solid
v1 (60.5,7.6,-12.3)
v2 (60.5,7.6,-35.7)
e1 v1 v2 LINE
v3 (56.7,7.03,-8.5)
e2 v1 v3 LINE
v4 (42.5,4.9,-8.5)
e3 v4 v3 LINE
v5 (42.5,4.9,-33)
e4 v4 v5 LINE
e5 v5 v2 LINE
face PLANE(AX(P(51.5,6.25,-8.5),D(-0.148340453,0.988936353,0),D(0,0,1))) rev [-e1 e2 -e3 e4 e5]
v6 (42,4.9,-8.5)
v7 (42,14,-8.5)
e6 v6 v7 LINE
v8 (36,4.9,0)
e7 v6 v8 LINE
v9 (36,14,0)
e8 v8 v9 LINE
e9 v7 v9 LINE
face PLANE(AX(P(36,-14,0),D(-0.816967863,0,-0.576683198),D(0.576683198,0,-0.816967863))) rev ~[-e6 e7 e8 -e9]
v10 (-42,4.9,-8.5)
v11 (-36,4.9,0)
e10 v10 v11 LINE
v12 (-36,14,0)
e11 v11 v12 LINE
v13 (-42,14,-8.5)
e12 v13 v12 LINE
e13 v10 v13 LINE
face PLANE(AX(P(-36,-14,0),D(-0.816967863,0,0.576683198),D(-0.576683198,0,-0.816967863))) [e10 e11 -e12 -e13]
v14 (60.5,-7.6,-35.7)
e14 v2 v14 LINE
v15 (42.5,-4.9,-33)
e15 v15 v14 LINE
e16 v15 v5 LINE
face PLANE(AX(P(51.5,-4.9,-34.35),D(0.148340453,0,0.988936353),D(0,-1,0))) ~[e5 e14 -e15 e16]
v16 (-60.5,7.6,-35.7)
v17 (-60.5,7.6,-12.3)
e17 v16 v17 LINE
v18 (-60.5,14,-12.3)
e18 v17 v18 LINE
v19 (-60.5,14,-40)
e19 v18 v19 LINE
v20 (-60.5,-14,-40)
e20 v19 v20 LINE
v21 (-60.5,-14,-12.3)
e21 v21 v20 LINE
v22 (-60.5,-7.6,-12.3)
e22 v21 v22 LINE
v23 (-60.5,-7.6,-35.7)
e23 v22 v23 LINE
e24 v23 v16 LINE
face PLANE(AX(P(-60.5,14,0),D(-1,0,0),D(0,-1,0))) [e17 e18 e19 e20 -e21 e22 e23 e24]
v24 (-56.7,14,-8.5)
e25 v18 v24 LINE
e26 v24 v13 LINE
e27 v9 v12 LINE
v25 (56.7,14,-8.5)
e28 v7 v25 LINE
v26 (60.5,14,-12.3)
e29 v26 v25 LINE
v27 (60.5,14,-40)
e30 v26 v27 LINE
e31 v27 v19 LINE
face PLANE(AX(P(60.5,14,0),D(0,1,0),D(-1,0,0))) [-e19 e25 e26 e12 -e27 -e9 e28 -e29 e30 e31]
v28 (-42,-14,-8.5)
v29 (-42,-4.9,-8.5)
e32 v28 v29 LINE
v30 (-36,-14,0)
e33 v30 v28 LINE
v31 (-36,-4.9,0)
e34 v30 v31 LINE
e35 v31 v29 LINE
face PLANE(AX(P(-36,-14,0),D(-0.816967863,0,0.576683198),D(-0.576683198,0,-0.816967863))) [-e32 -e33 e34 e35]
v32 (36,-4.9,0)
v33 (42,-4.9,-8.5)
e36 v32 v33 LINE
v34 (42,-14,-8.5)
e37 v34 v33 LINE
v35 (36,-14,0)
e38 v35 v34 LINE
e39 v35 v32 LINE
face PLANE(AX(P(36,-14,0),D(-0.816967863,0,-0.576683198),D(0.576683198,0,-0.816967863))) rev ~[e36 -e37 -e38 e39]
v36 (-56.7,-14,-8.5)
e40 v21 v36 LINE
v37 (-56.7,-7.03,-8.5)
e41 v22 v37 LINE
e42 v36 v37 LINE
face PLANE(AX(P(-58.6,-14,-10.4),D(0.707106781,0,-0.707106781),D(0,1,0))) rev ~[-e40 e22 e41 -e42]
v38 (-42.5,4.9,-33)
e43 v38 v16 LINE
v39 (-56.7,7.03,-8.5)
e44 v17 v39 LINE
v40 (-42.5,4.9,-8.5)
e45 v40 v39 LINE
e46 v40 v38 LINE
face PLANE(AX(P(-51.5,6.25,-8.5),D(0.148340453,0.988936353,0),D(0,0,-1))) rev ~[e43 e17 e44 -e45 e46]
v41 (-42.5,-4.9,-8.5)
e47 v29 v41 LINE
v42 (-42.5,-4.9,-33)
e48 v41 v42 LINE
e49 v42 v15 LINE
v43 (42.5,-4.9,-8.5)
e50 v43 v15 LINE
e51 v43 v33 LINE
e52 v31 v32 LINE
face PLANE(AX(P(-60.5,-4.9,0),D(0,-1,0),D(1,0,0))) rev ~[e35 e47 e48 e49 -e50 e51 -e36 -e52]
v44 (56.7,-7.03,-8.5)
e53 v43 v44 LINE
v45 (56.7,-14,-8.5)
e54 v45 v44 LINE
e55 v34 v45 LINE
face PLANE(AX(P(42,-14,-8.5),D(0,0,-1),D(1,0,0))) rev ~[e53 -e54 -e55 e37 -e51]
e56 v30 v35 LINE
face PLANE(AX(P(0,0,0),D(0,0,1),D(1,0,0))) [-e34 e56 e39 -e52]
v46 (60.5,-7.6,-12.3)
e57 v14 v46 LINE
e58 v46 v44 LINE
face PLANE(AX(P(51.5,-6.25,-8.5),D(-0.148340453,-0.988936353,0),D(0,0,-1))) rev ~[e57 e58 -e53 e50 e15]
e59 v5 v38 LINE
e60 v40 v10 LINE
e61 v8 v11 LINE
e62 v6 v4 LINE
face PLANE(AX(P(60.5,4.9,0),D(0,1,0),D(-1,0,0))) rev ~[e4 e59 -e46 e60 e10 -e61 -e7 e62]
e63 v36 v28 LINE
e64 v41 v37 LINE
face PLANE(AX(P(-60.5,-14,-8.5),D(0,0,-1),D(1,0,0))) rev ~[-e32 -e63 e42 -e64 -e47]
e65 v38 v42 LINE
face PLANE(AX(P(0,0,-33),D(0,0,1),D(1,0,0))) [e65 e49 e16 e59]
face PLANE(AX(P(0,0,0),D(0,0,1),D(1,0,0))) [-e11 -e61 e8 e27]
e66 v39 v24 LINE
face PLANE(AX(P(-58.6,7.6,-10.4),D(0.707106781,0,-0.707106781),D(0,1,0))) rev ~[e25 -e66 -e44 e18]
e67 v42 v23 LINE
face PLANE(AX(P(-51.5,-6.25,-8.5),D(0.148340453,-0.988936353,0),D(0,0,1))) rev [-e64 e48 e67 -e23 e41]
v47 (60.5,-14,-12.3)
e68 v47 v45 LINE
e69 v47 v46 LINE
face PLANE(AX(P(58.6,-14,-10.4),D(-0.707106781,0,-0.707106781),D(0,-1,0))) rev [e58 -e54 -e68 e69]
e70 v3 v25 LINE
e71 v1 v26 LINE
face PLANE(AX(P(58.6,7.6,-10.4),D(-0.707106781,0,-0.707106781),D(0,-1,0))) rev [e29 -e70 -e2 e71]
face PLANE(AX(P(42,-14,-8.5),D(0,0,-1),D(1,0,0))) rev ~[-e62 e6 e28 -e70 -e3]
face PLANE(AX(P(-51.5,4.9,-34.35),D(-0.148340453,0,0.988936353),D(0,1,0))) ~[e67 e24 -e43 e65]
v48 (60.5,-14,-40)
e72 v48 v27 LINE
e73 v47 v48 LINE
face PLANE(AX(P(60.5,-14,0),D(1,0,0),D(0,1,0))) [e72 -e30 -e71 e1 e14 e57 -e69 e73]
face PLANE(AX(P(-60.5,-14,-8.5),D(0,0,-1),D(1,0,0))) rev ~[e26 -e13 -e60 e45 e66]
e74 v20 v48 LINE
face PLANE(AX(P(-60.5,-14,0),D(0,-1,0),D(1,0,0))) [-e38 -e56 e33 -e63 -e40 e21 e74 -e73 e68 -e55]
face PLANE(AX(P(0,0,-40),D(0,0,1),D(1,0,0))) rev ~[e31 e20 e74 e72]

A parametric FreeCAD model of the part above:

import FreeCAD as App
import Part
import Sketcher
from FreeCAD import Vector
Q = App.Units.Quantity


def edges_at(feature, points):
    """Names of the edges that pass closest to the given points."""
    edges = feature.Shape.Edges
    near = lambda p: min(range(len(edges)), key=lambda i: edges[i].distToShape(Part.Vertex(*p))[0])
    return sorted({f"Edge{near(p) + 1}" for p in points})

doc = App.newDocument("Part")
body = doc.addObject("PartDesign::Body", "Body")

sketch1 = body.newObject("Sketcher::SketchObject", "Sketch")
sketch1.AttachmentSupport = (doc.getObject("XY_Plane"), [""])
sketch1.MapMode = "FlatFace"
sketch1.addGeometry(Part.LineSegment(Vector(-60.5, 14, 0), Vector(-60.5, -14, 0)), False)
sketch1.addGeometry(Part.LineSegment(Vector(-60.5, -14, 0), Vector(60.5, -14, 0)), False)
sketch1.addGeometry(Part.LineSegment(Vector(60.5, -14, 0), Vector(60.5, 14, 0)), False)
sketch1.addGeometry(Part.LineSegment(Vector(60.5, 14, 0), Vector(-60.5, 14, 0)), False)
sketch1.addConstraint(Sketcher.Constraint("Coincident", 0, 2, 1, 1))
sketch1.addConstraint(Sketcher.Constraint("Coincident", 1, 2, 2, 1))
sketch1.addConstraint(Sketcher.Constraint("Coincident", 2, 2, 3, 1))
sketch1.addConstraint(Sketcher.Constraint("Coincident", 3, 2, 0, 1))
sketch1.addConstraint(Sketcher.Constraint("Vertical", 0))
sketch1.addConstraint(Sketcher.Constraint("Horizontal", 1))
sketch1.addConstraint(Sketcher.Constraint("Vertical", 2))
sketch1.addConstraint(Sketcher.Constraint("Horizontal", 3))
sketch1.addConstraint(Sketcher.Constraint("Symmetric", 0, 2, 2, 2, -1, 1))
sketch1.addConstraint(Sketcher.Constraint("DistanceX", 1, 1, 1, 2, Q("121 mm")))
sketch1.addConstraint(Sketcher.Constraint("DistanceY", 0, 2, 0, 1, Q("28 mm")))
pad1 = body.newObject("PartDesign::Pad", "Pad")
pad1.Profile = sketch1
pad1.Length = 40
pad1.Reversed = True

sketch2 = body.newObject("Sketcher::SketchObject", "Sketch001")
sketch2.AttachmentSupport = (doc.getObject("XZ_Plane"), [""])
sketch2.MapMode = "FlatFace"
sketch2.AttachmentOffset = App.Placement(Vector(0, 0, 14), App.Rotation())
sketch2.addGeometry(Part.LineSegment(Vector(60.5, -8.5, 0), Vector(60.5, 0, 0)), False)
sketch2.addGeometry(Part.LineSegment(Vector(60.5, 0, 0), Vector(42, 0, 0)), False)
sketch2.addGeometry(Part.LineSegment(Vector(42, 0, 0), Vector(42, -8.5, 0)), False)
sketch2.addGeometry(Part.LineSegment(Vector(42, -8.5, 0), Vector(60.5, -8.5, 0)), False)
sketch2.addConstraint(Sketcher.Constraint("Coincident", 0, 2, 1, 1))
sketch2.addConstraint(Sketcher.Constraint("Coincident", 1, 2, 2, 1))
sketch2.addConstraint(Sketcher.Constraint("Coincident", 2, 2, 3, 1))
sketch2.addConstraint(Sketcher.Constraint("Coincident", 3, 2, 0, 1))
sketch2.addConstraint(Sketcher.Constraint("Vertical", 0))
sketch2.addConstraint(Sketcher.Constraint("Horizontal", 1))
sketch2.addConstraint(Sketcher.Constraint("Vertical", 2))
sketch2.addConstraint(Sketcher.Constraint("Horizontal", 3))
sketch2.addConstraint(Sketcher.Constraint("PointOnObject", 0, 2, -1))
sketch2.addConstraint(Sketcher.Constraint("DistanceX", 1, 2, 1, 1, Q("18.5 mm")))
sketch2.addConstraint(Sketcher.Constraint("DistanceY", 0, 1, 0, 2, Q("8.5 mm")))
sketch2.addConstraint(Sketcher.Constraint("DistanceX", -1, 1, 1, 2, Q("42 mm")))
pocket1 = body.newObject("PartDesign::Pocket", "Pocket")
pocket1.Profile = sketch2
pocket1.Length = 28

sketch3 = body.newObject("Sketcher::SketchObject", "Sketch002")
sketch3.AttachmentSupport = (doc.getObject("XZ_Plane"), [""])
sketch3.MapMode = "FlatFace"
sketch3.AttachmentOffset = App.Placement(Vector(0, 0, 14), App.Rotation())
sketch3.addGeometry(Part.LineSegment(Vector(-60.5, 0, 0), Vector(-60.5, -8.5, 0)), False)
sketch3.addGeometry(Part.LineSegment(Vector(-60.5, -8.5, 0), Vector(-42, -8.5, 0)), False)
sketch3.addGeometry(Part.LineSegment(Vector(-42, -8.5, 0), Vector(-42, 0, 0)), False)
sketch3.addGeometry(Part.LineSegment(Vector(-42, 0, 0), Vector(-60.5, 0, 0)), False)
sketch3.addConstraint(Sketcher.Constraint("Coincident", 0, 2, 1, 1))
sketch3.addConstraint(Sketcher.Constraint("Coincident", 1, 2, 2, 1))
sketch3.addConstraint(Sketcher.Constraint("Coincident", 2, 2, 3, 1))
sketch3.addConstraint(Sketcher.Constraint("Coincident", 3, 2, 0, 1))
sketch3.addConstraint(Sketcher.Constraint("Vertical", 0))
sketch3.addConstraint(Sketcher.Constraint("Horizontal", 1))
sketch3.addConstraint(Sketcher.Constraint("Vertical", 2))
sketch3.addConstraint(Sketcher.Constraint("Horizontal", 3))
sketch3.addConstraint(Sketcher.Constraint("PointOnObject", 2, 2, -1))
sketch3.addConstraint(Sketcher.Constraint("DistanceX", 1, 1, 1, 2, Q("18.5 mm")))
sketch3.addConstraint(Sketcher.Constraint("DistanceY", 0, 2, 0, 1, Q("8.5 mm")))
sketch3.addConstraint(Sketcher.Constraint("DistanceX", 1, 2, -1, 1, Q("42 mm")))
pocket2 = body.newObject("PartDesign::Pocket", "Pocket001")
pocket2.Profile = sketch3
pocket2.Length = 28

sketch4 = body.newObject("Sketcher::SketchObject", "Sketch003")
sketch4.AttachmentSupport = (doc.getObject("XY_Plane"), [""])
sketch4.MapMode = "FlatFace"
sketch4.addGeometry(Part.LineSegment(Vector(-60.5, -4.9, 0), Vector(60.5, -4.9, 0)), False)
sketch4.addGeometry(Part.LineSegment(Vector(60.5, -4.9, 0), Vector(60.5, 4.9, 0)), False)
sketch4.addGeometry(Part.LineSegment(Vector(60.5, 4.9, 0), Vector(-60.5, 4.9, 0)), False)
sketch4.addGeometry(Part.LineSegment(Vector(-60.5, 4.9, 0), Vector(-60.5, -4.9, 0)), False)
sketch4.addConstraint(Sketcher.Constraint("Coincident", 0, 2, 1, 1))
sketch4.addConstraint(Sketcher.Constraint("Coincident", 1, 2, 2, 1))
sketch4.addConstraint(Sketcher.Constraint("Coincident", 2, 2, 3, 1))
sketch4.addConstraint(Sketcher.Constraint("Coincident", 3, 2, 0, 1))
sketch4.addConstraint(Sketcher.Constraint("Horizontal", 0))
sketch4.addConstraint(Sketcher.Constraint("Vertical", 1))
sketch4.addConstraint(Sketcher.Constraint("Horizontal", 2))
sketch4.addConstraint(Sketcher.Constraint("Vertical", 3))
sketch4.addConstraint(Sketcher.Constraint("Symmetric", 0, 2, 2, 2, -1, 1))
sketch4.addConstraint(Sketcher.Constraint("DistanceX", 0, 1, 0, 2, Q("121 mm")))
sketch4.addConstraint(Sketcher.Constraint("DistanceY", 1, 1, 1, 2, Q("9.8 mm")))
pocket3 = body.newObject("PartDesign::Pocket", "Pocket002")
pocket3.Profile = sketch4
pocket3.Length = 33
doc.recompute()

chamfer = body.newObject("PartDesign::Chamfer", "Chamfer")
chamfer.Base = (pocket3, edges_at(pocket3, [(-60.5, 0, -33)]))
chamfer.ChamferType = "Two distances"
chamfer.Size = 18
chamfer.Size2 = 2.7
chamfer.FlipDirection = True
doc.recompute()

chamfer2 = body.newObject("PartDesign::Chamfer", "Chamfer001")
chamfer2.Base = (chamfer, edges_at(chamfer, [(-60.5, -4.9, -22.1)]))
chamfer2.ChamferType = "Two distances"
chamfer2.Size = 18
chamfer2.Size2 = 2.7
chamfer2.FlipDirection = True
doc.recompute()

chamfer3 = body.newObject("PartDesign::Chamfer", "Chamfer002")
chamfer3.Base = (chamfer2, edges_at(chamfer2, [(-60.5, 4.9, -22.1)]))
chamfer3.ChamferType = "Two distances"
chamfer3.Size = 18
chamfer3.Size2 = 2.7
chamfer3.FlipDirection = True
doc.recompute()

chamfer4 = body.newObject("PartDesign::Chamfer", "Chamfer003")
chamfer4.Base = (chamfer3, edges_at(chamfer3, [(60.5, 0, -33)]))
chamfer4.ChamferType = "Two distances"
chamfer4.Size = 18
chamfer4.Size2 = 2.7
chamfer4.FlipDirection = True
doc.recompute()

chamfer5 = body.newObject("PartDesign::Chamfer", "Chamfer004")
chamfer5.Base = (chamfer4, edges_at(chamfer4, [(60.5, 4.9, -22.1)]))
chamfer5.ChamferType = "Two distances"
chamfer5.Size = 18
chamfer5.Size2 = 2.7
doc.recompute()

chamfer6 = body.newObject("PartDesign::Chamfer", "Chamfer005")
chamfer6.Base = (chamfer5, edges_at(chamfer5, [(60.5, -4.9, -22.1)]))
chamfer6.ChamferType = "Two distances"
chamfer6.Size = 18
chamfer6.Size2 = 2.7
chamfer6.FlipDirection = True

sketch5 = body.newObject("Sketcher::SketchObject", "Sketch004")
sketch5.AttachmentSupport = (doc.getObject("XZ_Plane"), [""])
sketch5.MapMode = "FlatFace"
sketch5.AttachmentOffset = App.Placement(Vector(0, 0, 14), App.Rotation())
sketch5.addGeometry(Part.LineSegment(Vector(-42, -8.5, 0), Vector(-36, 0, 0)), False)
sketch5.addGeometry(Part.LineSegment(Vector(-36, 0, 0), Vector(-42, 0, 0)), False)
sketch5.addGeometry(Part.LineSegment(Vector(-42, 0, 0), Vector(-42, -8.5, 0)), False)
sketch5.addGeometry(Part.LineSegment(Vector(42, 0, 0), Vector(36, 0, 0)), False)
sketch5.addGeometry(Part.LineSegment(Vector(36, 0, 0), Vector(42, -8.5, 0)), False)
sketch5.addGeometry(Part.LineSegment(Vector(42, -8.5, 0), Vector(42, 0, 0)), False)
sketch5.addConstraint(Sketcher.Constraint("Coincident", 0, 2, 1, 1))
sketch5.addConstraint(Sketcher.Constraint("Coincident", 1, 2, 2, 1))
sketch5.addConstraint(Sketcher.Constraint("Coincident", 2, 2, 0, 1))
sketch5.addConstraint(Sketcher.Constraint("Coincident", 3, 2, 4, 1))
sketch5.addConstraint(Sketcher.Constraint("Coincident", 4, 2, 5, 1))
sketch5.addConstraint(Sketcher.Constraint("Coincident", 5, 2, 3, 1))
sketch5.addConstraint(Sketcher.Constraint("Horizontal", 1))
sketch5.addConstraint(Sketcher.Constraint("Vertical", 2))
sketch5.addConstraint(Sketcher.Constraint("Horizontal", 3))
sketch5.addConstraint(Sketcher.Constraint("Vertical", 5))
sketch5.addConstraint(Sketcher.Constraint("Symmetric", 0, 2, 3, 2, -1, 1))
sketch5.addConstraint(Sketcher.Constraint("Symmetric", 2, 2, 4, 2, -2))
sketch5.addConstraint(Sketcher.Constraint("PointOnObject", 0, 2, -1))
sketch5.addConstraint(Sketcher.Constraint("DistanceX", 1, 2, 1, 1, Q("6 mm")))
sketch5.addConstraint(Sketcher.Constraint("DistanceY", 2, 2, 2, 1, Q("8.5 mm")))
sketch5.addConstraint(Sketcher.Constraint("DistanceX", 0, 2, -1, 1, Q("36 mm")))
pocket4 = body.newObject("PartDesign::Pocket", "Pocket003")
pocket4.Profile = sketch5
pocket4.Length = 30
doc.recompute()

chamfer7 = body.newObject("PartDesign::Chamfer", "Chamfer006")
chamfer7.Base = (pocket4, edges_at(pocket4, [
    (60.5, 10.8, -8.5),
    (60.5, -10.8, -8.5),
    (-60.5, 10.8, -8.5),
    (-60.5, -10.8, -8.5),
]))
chamfer7.Size = 3.8

doc.recompute()
